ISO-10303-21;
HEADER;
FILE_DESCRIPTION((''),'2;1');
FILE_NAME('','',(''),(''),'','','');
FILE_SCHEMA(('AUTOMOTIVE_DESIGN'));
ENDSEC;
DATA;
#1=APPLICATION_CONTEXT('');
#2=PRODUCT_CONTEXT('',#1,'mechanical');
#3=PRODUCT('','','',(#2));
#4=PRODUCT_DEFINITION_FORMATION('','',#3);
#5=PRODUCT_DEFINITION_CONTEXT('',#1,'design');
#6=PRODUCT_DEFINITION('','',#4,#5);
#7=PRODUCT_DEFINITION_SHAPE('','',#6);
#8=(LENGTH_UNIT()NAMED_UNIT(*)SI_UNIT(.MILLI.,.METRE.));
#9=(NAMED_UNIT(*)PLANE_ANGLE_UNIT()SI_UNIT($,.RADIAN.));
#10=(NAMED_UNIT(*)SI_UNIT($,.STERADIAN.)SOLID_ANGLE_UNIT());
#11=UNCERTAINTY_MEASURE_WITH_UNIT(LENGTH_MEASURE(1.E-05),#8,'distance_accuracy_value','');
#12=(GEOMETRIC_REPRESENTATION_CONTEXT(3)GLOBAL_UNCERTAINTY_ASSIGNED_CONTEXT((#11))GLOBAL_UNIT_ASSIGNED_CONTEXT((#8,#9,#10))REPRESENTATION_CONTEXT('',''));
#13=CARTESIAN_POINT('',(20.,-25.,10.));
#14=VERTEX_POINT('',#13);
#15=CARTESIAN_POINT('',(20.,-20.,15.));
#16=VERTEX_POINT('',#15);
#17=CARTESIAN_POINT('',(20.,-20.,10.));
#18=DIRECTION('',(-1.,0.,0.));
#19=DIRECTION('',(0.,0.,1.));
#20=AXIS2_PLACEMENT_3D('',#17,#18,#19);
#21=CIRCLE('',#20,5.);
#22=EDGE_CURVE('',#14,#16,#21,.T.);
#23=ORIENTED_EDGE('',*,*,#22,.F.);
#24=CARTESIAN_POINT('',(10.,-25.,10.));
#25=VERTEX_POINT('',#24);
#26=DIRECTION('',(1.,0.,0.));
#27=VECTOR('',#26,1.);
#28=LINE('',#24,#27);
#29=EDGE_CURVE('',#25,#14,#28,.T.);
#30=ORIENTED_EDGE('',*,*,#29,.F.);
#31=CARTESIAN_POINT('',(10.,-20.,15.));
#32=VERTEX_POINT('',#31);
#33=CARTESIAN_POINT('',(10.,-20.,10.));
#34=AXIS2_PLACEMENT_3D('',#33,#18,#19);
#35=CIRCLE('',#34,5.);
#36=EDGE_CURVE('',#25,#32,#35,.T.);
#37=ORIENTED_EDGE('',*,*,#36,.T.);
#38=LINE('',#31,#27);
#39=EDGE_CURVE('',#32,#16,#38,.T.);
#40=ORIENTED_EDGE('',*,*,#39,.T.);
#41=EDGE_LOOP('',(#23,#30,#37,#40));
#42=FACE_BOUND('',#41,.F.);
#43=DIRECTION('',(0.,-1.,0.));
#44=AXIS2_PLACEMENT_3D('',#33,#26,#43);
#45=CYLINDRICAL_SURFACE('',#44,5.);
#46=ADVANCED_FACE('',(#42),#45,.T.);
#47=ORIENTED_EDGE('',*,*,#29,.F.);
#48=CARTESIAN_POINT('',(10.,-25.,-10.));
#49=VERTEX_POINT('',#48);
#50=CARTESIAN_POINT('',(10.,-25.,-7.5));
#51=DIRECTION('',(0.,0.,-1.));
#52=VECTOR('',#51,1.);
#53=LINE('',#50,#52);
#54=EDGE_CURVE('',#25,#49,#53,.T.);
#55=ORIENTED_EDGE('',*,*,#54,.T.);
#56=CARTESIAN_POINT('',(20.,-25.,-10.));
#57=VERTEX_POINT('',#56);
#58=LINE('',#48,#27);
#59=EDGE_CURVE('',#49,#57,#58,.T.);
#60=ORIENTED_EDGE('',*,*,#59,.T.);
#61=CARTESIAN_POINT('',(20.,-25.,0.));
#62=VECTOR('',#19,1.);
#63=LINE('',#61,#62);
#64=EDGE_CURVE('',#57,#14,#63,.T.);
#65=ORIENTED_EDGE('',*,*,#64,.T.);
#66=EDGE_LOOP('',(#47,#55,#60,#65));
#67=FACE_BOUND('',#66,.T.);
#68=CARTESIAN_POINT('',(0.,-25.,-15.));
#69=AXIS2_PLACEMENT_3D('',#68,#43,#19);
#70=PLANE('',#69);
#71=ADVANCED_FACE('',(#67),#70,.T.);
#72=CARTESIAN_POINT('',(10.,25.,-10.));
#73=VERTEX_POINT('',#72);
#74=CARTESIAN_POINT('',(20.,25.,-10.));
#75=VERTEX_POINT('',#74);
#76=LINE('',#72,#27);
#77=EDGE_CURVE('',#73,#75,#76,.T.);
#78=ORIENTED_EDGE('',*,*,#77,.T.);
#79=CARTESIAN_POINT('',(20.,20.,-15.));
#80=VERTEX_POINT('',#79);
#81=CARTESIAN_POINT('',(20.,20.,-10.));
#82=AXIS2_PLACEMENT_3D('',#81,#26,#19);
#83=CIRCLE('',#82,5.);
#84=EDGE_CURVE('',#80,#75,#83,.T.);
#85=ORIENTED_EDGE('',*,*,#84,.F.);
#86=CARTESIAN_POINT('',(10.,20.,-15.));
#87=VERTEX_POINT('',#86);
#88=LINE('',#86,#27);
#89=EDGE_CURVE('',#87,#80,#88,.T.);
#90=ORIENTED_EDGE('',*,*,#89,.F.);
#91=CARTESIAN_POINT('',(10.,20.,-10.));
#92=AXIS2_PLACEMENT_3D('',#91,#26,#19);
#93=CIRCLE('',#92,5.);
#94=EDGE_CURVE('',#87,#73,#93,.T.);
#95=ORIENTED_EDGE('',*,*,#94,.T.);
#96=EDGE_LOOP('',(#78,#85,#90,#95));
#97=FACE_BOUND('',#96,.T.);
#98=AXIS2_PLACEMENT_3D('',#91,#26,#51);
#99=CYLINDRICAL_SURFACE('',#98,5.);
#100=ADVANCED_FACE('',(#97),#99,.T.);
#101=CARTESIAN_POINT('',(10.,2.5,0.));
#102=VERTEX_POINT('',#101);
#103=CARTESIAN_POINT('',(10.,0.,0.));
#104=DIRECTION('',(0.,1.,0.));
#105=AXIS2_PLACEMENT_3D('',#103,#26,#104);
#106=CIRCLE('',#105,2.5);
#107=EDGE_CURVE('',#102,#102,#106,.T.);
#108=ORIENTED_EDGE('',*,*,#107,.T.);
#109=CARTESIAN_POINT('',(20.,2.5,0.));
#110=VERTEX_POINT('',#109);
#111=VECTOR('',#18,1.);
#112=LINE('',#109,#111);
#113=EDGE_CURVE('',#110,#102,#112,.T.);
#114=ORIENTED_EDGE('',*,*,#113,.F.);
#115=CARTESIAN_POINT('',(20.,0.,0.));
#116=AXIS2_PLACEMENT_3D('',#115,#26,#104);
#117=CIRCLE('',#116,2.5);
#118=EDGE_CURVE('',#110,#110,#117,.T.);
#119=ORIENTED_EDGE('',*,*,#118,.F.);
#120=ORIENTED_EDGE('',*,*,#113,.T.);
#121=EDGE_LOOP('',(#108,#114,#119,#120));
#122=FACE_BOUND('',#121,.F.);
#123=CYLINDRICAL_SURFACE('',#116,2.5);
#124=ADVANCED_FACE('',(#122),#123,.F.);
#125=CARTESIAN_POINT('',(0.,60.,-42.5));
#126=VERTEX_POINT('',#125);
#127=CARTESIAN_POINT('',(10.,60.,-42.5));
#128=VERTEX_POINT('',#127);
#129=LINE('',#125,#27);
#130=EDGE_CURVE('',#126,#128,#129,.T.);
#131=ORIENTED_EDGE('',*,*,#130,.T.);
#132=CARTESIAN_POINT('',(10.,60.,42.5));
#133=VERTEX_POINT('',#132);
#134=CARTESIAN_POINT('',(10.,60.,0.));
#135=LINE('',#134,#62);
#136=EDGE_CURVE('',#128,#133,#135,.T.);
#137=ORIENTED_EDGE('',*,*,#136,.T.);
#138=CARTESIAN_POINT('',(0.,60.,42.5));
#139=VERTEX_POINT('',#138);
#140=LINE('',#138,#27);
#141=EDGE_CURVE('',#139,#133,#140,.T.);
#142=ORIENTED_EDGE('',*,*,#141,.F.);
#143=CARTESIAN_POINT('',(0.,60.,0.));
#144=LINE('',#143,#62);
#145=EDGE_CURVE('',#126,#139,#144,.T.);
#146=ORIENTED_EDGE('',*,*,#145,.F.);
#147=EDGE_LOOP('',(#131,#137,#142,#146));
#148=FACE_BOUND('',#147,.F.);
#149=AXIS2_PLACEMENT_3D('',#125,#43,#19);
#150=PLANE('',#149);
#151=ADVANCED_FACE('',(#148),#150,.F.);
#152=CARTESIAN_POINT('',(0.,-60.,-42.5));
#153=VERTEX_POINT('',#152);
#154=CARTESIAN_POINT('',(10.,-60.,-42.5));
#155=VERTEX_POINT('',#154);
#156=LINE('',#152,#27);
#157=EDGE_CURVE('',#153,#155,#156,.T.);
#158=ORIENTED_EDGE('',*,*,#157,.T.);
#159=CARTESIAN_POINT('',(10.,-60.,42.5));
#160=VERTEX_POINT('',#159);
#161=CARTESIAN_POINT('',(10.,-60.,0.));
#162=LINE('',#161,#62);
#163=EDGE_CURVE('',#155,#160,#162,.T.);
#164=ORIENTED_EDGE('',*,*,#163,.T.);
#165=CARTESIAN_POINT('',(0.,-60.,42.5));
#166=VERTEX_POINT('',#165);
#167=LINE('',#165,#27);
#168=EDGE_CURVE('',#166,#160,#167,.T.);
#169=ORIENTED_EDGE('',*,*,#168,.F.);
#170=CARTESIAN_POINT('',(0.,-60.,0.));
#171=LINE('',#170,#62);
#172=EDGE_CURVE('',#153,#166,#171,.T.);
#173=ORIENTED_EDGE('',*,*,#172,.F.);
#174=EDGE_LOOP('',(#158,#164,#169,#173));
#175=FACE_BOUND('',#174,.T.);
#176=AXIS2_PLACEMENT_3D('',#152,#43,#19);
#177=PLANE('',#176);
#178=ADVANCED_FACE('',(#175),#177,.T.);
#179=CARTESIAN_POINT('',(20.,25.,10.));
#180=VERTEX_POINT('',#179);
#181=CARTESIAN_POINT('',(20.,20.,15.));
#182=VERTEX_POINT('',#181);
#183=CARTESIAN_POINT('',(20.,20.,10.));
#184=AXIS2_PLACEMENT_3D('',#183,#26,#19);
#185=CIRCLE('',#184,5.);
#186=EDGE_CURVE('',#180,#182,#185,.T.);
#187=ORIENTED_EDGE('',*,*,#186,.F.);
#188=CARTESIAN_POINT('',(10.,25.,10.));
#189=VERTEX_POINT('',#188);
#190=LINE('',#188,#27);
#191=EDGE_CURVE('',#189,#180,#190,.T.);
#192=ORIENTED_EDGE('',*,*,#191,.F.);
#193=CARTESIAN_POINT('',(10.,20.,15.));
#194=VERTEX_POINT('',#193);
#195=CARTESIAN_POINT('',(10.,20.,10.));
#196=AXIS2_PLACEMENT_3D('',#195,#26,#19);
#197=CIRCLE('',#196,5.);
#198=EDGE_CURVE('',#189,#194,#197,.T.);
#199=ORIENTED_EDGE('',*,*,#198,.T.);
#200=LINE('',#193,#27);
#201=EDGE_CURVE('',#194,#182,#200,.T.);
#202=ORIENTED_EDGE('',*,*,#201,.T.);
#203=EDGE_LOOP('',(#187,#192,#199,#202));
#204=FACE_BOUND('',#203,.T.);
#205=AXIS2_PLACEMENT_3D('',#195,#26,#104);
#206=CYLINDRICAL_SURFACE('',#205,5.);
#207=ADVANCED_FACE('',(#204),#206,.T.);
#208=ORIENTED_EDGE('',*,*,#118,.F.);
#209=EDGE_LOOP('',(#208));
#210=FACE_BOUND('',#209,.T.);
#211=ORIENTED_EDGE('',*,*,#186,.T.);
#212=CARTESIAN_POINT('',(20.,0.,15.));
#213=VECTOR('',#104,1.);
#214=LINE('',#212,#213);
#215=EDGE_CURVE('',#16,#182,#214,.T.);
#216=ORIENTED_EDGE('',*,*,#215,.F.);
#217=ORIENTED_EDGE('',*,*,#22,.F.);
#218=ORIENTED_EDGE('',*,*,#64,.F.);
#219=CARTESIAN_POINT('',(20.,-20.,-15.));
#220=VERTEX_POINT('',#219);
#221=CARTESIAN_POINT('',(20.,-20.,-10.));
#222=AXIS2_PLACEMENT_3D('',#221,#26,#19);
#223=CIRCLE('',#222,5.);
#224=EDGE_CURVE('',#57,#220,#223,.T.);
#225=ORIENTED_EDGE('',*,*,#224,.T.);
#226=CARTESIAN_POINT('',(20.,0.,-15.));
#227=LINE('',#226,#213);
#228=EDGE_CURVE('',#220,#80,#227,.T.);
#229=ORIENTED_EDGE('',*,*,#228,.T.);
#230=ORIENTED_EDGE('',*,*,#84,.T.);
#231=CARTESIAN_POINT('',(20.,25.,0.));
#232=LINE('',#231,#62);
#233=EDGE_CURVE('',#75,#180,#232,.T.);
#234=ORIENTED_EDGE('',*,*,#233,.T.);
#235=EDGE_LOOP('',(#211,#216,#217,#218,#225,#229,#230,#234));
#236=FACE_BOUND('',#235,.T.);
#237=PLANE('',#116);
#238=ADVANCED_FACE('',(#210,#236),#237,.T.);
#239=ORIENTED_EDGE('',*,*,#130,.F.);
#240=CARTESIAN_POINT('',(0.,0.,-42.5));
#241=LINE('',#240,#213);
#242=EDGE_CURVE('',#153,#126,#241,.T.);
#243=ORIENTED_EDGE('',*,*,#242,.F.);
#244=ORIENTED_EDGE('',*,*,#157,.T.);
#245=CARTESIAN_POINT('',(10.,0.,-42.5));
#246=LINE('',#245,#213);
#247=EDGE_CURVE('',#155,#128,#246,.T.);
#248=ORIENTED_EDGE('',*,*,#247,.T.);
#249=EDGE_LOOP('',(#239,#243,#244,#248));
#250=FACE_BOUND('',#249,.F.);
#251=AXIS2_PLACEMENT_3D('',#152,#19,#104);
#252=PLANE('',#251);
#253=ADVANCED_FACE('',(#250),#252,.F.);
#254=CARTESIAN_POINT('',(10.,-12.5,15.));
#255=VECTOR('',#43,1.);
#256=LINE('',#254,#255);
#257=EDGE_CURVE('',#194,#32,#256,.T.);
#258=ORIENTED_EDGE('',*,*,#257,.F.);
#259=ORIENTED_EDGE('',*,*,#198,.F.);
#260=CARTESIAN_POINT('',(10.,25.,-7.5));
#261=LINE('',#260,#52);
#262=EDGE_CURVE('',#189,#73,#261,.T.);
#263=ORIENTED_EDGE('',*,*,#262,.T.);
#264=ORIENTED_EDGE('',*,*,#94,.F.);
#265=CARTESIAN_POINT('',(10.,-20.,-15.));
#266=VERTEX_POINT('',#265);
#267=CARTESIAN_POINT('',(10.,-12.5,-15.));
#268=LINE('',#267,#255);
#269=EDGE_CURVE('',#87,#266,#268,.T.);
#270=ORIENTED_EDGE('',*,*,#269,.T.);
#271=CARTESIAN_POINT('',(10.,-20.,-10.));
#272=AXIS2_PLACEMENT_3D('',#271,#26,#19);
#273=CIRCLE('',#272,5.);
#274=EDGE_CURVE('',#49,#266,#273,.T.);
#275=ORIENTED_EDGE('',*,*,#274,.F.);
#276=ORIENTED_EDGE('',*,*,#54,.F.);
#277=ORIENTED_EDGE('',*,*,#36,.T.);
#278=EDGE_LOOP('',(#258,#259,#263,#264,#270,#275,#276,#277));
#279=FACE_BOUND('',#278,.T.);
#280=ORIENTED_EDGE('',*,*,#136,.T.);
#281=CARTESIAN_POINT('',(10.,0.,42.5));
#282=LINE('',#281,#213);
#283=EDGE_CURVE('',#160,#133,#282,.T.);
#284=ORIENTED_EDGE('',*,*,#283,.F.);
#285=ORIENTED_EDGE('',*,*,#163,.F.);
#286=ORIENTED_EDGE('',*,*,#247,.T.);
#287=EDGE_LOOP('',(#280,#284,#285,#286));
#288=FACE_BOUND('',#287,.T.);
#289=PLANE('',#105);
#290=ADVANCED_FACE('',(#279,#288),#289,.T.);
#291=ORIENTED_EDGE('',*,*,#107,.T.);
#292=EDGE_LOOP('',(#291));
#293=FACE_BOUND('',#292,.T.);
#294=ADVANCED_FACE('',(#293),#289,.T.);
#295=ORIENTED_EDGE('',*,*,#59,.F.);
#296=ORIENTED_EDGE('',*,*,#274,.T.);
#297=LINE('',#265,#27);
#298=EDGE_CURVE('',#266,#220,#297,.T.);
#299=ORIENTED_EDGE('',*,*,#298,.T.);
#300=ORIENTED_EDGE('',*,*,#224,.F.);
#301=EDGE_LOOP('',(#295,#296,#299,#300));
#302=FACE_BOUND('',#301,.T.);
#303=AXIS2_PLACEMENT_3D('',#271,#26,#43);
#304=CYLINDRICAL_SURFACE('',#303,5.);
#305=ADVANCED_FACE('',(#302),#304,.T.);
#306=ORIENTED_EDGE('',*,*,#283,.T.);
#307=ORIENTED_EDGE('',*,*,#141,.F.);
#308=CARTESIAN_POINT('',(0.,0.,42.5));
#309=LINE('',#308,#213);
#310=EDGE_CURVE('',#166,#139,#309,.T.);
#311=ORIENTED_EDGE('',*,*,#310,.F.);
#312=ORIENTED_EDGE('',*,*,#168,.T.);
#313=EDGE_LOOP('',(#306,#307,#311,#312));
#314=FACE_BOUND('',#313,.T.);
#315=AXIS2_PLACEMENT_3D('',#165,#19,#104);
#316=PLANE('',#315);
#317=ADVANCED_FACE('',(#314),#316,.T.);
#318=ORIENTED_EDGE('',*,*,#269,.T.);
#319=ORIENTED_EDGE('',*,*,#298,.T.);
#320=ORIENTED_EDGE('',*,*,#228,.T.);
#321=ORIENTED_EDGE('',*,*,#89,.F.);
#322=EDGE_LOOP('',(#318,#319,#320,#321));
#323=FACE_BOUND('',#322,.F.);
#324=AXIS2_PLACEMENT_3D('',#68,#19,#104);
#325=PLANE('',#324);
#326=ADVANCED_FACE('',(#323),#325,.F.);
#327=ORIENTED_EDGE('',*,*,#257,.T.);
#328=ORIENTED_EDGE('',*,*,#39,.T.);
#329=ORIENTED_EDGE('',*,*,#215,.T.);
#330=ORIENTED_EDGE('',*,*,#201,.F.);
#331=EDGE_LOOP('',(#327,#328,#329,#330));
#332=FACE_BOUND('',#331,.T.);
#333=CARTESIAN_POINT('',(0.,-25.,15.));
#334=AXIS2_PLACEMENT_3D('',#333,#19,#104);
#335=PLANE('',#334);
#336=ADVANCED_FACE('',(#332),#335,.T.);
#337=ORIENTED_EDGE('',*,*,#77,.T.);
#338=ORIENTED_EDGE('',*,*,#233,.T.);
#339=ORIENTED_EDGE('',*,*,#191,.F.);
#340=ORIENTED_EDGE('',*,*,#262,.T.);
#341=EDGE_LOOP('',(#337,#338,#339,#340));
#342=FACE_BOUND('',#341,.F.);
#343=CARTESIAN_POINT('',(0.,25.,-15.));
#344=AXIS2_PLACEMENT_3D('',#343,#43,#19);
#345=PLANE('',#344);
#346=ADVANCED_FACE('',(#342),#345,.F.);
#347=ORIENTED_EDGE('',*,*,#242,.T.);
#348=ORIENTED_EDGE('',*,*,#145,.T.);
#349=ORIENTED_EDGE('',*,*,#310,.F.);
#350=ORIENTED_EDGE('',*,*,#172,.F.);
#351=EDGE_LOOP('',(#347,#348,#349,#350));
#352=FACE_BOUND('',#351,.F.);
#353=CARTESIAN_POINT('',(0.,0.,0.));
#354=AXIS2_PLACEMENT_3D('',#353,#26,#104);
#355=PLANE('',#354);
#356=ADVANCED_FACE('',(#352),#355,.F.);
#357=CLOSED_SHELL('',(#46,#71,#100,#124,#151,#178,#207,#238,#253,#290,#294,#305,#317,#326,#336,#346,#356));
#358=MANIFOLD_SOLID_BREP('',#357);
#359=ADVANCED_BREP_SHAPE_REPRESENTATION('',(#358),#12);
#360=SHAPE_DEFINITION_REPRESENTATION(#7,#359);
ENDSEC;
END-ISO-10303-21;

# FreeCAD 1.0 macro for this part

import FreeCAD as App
import Part
import Sketcher

V = App.Vector
Q = App.Units.Quantity


def edges_at(feature, points):
    """Names of the edges that pass closest to the given points."""
    edges = feature.Shape.Edges
    near = lambda p: min(range(len(edges)), key=lambda i: edges[i].distToShape(Part.Vertex(*p))[0])
    return sorted({f"Edge{near(p) + 1}" for p in points})


def add_polygon(sketch, points):
    """Adds a closed chain of lines whose ends are joined by coincident constraints."""
    first, n = sketch.GeometryCount, len(points)
    for a, b in zip(points, points[1:] + points[:1]):
        sketch.addGeometry(Part.LineSegment(App.Vector(*a, 0), App.Vector(*b, 0)), False)
    for i in range(n):
        sketch.addConstraint(Sketcher.Constraint("Coincident", first + i, 2, first + (i + 1) % n, 1))

doc = App.newDocument("Part")
params = doc.addObject("Spreadsheet::Sheet", "Params")
for row, (alias, value) in enumerate([
    ("sketch1_width", "120 mm"),
    ("sketch1_height", "85 mm"),
    ("pad1_length", "10 mm"),
    ("sketch2_width", "50 mm"),
    ("sketch2_height", "30 mm"),
    ("pad2_length", "20 mm"),
    ("sketch3_diameter", "5 mm"),
    ("pocket1_length", "10 mm"),
    ("fillet_radius", "5 mm"),
], start=1):
    params.set(f"A{row}", alias)
    params.set(f"B{row}", "=" + value)
    params.setAlias(f"B{row}", alias)

body = doc.addObject("PartDesign::Body", "Body")

sketch1 = body.newObject("Sketcher::SketchObject", "Sketch")
sketch1.AttachmentSupport = (doc.getObject("YZ_Plane"), [""])
sketch1.MapMode = "FlatFace"
add_polygon(sketch1, [(-60, 42), (-60, -42), (60, -42), (60, 42)])
sketch1.addConstraint([
    Sketcher.Constraint("Vertical", 0),
    Sketcher.Constraint("Horizontal", 1),
    Sketcher.Constraint("Vertical", 2),
    Sketcher.Constraint("Horizontal", 3),
    Sketcher.Constraint("Symmetric", 0, 2, 2, 2, -1, 1),
    Sketcher.Constraint("DistanceX", 1, 1, 1, 2, Q("120 mm")),
    Sketcher.Constraint("DistanceY", 0, 2, 0, 1, Q("85 mm")),
])
sketch1.setExpression("Constraints[9]", "Params.sketch1_width")
sketch1.setExpression("Constraints[10]", "Params.sketch1_height")
pad1 = body.newObject("PartDesign::Pad", "Pad")
pad1.Profile = sketch1
pad1.setExpression("Length", "Params.pad1_length")

sketch2 = body.newObject("Sketcher::SketchObject", "Sketch001")
sketch2.AttachmentSupport = (doc.getObject("YZ_Plane"), [""])
sketch2.MapMode = "FlatFace"
add_polygon(sketch2, [(-25, 15), (-25, -15), (25, -15), (25, 15)])
sketch2.addConstraint([
    Sketcher.Constraint("Vertical", 0),
    Sketcher.Constraint("Horizontal", 1),
    Sketcher.Constraint("Vertical", 2),
    Sketcher.Constraint("Horizontal", 3),
    Sketcher.Constraint("Symmetric", 0, 2, 2, 2, -1, 1),
    Sketcher.Constraint("DistanceX", 1, 1, 1, 2, Q("50 mm")),
    Sketcher.Constraint("DistanceY", 0, 2, 0, 1, Q("30 mm")),
])
sketch2.setExpression("Constraints[9]", "Params.sketch2_width")
sketch2.setExpression("Constraints[10]", "Params.sketch2_height")
pad2 = body.newObject("PartDesign::Pad", "Pad001")
pad2.Profile = sketch2
pad2.setExpression("Length", "Params.pad2_length")

sketch3 = body.newObject("Sketcher::SketchObject", "Sketch002")
sketch3.AttachmentSupport = (doc.getObject("YZ_Plane"), [""])
sketch3.MapMode = "FlatFace"
sketch3.AttachmentOffset = App.Placement(V(0, 0, 20), App.Rotation())
sketch3.addGeometry(Part.Circle(V(0, 0, 0), V(0, 0, 1), 2.5), False)
sketch3.addConstraint([
    Sketcher.Constraint("Coincident", 0, 3, -1, 1),
    Sketcher.Constraint("Diameter", 0, Q("5 mm")),
])
sketch3.setExpression("Constraints[1]", "Params.sketch3_diameter")
pocket1 = body.newObject("PartDesign::Pocket", "Pocket")
pocket1.Profile = sketch3
pocket1.setExpression("Length", "Params.pocket1_length")
doc.recompute()

fillet = body.newObject("PartDesign::Fillet", "Fillet")
fillet.Base = (pocket1, edges_at(pocket1, [
    (15, -25, 15),
    (15, 25, 15),
    (15, -25, -15),
    (15, 25, -15),
]))
fillet.setExpression("Radius", "Params.fillet_radius")

doc.recompute()
